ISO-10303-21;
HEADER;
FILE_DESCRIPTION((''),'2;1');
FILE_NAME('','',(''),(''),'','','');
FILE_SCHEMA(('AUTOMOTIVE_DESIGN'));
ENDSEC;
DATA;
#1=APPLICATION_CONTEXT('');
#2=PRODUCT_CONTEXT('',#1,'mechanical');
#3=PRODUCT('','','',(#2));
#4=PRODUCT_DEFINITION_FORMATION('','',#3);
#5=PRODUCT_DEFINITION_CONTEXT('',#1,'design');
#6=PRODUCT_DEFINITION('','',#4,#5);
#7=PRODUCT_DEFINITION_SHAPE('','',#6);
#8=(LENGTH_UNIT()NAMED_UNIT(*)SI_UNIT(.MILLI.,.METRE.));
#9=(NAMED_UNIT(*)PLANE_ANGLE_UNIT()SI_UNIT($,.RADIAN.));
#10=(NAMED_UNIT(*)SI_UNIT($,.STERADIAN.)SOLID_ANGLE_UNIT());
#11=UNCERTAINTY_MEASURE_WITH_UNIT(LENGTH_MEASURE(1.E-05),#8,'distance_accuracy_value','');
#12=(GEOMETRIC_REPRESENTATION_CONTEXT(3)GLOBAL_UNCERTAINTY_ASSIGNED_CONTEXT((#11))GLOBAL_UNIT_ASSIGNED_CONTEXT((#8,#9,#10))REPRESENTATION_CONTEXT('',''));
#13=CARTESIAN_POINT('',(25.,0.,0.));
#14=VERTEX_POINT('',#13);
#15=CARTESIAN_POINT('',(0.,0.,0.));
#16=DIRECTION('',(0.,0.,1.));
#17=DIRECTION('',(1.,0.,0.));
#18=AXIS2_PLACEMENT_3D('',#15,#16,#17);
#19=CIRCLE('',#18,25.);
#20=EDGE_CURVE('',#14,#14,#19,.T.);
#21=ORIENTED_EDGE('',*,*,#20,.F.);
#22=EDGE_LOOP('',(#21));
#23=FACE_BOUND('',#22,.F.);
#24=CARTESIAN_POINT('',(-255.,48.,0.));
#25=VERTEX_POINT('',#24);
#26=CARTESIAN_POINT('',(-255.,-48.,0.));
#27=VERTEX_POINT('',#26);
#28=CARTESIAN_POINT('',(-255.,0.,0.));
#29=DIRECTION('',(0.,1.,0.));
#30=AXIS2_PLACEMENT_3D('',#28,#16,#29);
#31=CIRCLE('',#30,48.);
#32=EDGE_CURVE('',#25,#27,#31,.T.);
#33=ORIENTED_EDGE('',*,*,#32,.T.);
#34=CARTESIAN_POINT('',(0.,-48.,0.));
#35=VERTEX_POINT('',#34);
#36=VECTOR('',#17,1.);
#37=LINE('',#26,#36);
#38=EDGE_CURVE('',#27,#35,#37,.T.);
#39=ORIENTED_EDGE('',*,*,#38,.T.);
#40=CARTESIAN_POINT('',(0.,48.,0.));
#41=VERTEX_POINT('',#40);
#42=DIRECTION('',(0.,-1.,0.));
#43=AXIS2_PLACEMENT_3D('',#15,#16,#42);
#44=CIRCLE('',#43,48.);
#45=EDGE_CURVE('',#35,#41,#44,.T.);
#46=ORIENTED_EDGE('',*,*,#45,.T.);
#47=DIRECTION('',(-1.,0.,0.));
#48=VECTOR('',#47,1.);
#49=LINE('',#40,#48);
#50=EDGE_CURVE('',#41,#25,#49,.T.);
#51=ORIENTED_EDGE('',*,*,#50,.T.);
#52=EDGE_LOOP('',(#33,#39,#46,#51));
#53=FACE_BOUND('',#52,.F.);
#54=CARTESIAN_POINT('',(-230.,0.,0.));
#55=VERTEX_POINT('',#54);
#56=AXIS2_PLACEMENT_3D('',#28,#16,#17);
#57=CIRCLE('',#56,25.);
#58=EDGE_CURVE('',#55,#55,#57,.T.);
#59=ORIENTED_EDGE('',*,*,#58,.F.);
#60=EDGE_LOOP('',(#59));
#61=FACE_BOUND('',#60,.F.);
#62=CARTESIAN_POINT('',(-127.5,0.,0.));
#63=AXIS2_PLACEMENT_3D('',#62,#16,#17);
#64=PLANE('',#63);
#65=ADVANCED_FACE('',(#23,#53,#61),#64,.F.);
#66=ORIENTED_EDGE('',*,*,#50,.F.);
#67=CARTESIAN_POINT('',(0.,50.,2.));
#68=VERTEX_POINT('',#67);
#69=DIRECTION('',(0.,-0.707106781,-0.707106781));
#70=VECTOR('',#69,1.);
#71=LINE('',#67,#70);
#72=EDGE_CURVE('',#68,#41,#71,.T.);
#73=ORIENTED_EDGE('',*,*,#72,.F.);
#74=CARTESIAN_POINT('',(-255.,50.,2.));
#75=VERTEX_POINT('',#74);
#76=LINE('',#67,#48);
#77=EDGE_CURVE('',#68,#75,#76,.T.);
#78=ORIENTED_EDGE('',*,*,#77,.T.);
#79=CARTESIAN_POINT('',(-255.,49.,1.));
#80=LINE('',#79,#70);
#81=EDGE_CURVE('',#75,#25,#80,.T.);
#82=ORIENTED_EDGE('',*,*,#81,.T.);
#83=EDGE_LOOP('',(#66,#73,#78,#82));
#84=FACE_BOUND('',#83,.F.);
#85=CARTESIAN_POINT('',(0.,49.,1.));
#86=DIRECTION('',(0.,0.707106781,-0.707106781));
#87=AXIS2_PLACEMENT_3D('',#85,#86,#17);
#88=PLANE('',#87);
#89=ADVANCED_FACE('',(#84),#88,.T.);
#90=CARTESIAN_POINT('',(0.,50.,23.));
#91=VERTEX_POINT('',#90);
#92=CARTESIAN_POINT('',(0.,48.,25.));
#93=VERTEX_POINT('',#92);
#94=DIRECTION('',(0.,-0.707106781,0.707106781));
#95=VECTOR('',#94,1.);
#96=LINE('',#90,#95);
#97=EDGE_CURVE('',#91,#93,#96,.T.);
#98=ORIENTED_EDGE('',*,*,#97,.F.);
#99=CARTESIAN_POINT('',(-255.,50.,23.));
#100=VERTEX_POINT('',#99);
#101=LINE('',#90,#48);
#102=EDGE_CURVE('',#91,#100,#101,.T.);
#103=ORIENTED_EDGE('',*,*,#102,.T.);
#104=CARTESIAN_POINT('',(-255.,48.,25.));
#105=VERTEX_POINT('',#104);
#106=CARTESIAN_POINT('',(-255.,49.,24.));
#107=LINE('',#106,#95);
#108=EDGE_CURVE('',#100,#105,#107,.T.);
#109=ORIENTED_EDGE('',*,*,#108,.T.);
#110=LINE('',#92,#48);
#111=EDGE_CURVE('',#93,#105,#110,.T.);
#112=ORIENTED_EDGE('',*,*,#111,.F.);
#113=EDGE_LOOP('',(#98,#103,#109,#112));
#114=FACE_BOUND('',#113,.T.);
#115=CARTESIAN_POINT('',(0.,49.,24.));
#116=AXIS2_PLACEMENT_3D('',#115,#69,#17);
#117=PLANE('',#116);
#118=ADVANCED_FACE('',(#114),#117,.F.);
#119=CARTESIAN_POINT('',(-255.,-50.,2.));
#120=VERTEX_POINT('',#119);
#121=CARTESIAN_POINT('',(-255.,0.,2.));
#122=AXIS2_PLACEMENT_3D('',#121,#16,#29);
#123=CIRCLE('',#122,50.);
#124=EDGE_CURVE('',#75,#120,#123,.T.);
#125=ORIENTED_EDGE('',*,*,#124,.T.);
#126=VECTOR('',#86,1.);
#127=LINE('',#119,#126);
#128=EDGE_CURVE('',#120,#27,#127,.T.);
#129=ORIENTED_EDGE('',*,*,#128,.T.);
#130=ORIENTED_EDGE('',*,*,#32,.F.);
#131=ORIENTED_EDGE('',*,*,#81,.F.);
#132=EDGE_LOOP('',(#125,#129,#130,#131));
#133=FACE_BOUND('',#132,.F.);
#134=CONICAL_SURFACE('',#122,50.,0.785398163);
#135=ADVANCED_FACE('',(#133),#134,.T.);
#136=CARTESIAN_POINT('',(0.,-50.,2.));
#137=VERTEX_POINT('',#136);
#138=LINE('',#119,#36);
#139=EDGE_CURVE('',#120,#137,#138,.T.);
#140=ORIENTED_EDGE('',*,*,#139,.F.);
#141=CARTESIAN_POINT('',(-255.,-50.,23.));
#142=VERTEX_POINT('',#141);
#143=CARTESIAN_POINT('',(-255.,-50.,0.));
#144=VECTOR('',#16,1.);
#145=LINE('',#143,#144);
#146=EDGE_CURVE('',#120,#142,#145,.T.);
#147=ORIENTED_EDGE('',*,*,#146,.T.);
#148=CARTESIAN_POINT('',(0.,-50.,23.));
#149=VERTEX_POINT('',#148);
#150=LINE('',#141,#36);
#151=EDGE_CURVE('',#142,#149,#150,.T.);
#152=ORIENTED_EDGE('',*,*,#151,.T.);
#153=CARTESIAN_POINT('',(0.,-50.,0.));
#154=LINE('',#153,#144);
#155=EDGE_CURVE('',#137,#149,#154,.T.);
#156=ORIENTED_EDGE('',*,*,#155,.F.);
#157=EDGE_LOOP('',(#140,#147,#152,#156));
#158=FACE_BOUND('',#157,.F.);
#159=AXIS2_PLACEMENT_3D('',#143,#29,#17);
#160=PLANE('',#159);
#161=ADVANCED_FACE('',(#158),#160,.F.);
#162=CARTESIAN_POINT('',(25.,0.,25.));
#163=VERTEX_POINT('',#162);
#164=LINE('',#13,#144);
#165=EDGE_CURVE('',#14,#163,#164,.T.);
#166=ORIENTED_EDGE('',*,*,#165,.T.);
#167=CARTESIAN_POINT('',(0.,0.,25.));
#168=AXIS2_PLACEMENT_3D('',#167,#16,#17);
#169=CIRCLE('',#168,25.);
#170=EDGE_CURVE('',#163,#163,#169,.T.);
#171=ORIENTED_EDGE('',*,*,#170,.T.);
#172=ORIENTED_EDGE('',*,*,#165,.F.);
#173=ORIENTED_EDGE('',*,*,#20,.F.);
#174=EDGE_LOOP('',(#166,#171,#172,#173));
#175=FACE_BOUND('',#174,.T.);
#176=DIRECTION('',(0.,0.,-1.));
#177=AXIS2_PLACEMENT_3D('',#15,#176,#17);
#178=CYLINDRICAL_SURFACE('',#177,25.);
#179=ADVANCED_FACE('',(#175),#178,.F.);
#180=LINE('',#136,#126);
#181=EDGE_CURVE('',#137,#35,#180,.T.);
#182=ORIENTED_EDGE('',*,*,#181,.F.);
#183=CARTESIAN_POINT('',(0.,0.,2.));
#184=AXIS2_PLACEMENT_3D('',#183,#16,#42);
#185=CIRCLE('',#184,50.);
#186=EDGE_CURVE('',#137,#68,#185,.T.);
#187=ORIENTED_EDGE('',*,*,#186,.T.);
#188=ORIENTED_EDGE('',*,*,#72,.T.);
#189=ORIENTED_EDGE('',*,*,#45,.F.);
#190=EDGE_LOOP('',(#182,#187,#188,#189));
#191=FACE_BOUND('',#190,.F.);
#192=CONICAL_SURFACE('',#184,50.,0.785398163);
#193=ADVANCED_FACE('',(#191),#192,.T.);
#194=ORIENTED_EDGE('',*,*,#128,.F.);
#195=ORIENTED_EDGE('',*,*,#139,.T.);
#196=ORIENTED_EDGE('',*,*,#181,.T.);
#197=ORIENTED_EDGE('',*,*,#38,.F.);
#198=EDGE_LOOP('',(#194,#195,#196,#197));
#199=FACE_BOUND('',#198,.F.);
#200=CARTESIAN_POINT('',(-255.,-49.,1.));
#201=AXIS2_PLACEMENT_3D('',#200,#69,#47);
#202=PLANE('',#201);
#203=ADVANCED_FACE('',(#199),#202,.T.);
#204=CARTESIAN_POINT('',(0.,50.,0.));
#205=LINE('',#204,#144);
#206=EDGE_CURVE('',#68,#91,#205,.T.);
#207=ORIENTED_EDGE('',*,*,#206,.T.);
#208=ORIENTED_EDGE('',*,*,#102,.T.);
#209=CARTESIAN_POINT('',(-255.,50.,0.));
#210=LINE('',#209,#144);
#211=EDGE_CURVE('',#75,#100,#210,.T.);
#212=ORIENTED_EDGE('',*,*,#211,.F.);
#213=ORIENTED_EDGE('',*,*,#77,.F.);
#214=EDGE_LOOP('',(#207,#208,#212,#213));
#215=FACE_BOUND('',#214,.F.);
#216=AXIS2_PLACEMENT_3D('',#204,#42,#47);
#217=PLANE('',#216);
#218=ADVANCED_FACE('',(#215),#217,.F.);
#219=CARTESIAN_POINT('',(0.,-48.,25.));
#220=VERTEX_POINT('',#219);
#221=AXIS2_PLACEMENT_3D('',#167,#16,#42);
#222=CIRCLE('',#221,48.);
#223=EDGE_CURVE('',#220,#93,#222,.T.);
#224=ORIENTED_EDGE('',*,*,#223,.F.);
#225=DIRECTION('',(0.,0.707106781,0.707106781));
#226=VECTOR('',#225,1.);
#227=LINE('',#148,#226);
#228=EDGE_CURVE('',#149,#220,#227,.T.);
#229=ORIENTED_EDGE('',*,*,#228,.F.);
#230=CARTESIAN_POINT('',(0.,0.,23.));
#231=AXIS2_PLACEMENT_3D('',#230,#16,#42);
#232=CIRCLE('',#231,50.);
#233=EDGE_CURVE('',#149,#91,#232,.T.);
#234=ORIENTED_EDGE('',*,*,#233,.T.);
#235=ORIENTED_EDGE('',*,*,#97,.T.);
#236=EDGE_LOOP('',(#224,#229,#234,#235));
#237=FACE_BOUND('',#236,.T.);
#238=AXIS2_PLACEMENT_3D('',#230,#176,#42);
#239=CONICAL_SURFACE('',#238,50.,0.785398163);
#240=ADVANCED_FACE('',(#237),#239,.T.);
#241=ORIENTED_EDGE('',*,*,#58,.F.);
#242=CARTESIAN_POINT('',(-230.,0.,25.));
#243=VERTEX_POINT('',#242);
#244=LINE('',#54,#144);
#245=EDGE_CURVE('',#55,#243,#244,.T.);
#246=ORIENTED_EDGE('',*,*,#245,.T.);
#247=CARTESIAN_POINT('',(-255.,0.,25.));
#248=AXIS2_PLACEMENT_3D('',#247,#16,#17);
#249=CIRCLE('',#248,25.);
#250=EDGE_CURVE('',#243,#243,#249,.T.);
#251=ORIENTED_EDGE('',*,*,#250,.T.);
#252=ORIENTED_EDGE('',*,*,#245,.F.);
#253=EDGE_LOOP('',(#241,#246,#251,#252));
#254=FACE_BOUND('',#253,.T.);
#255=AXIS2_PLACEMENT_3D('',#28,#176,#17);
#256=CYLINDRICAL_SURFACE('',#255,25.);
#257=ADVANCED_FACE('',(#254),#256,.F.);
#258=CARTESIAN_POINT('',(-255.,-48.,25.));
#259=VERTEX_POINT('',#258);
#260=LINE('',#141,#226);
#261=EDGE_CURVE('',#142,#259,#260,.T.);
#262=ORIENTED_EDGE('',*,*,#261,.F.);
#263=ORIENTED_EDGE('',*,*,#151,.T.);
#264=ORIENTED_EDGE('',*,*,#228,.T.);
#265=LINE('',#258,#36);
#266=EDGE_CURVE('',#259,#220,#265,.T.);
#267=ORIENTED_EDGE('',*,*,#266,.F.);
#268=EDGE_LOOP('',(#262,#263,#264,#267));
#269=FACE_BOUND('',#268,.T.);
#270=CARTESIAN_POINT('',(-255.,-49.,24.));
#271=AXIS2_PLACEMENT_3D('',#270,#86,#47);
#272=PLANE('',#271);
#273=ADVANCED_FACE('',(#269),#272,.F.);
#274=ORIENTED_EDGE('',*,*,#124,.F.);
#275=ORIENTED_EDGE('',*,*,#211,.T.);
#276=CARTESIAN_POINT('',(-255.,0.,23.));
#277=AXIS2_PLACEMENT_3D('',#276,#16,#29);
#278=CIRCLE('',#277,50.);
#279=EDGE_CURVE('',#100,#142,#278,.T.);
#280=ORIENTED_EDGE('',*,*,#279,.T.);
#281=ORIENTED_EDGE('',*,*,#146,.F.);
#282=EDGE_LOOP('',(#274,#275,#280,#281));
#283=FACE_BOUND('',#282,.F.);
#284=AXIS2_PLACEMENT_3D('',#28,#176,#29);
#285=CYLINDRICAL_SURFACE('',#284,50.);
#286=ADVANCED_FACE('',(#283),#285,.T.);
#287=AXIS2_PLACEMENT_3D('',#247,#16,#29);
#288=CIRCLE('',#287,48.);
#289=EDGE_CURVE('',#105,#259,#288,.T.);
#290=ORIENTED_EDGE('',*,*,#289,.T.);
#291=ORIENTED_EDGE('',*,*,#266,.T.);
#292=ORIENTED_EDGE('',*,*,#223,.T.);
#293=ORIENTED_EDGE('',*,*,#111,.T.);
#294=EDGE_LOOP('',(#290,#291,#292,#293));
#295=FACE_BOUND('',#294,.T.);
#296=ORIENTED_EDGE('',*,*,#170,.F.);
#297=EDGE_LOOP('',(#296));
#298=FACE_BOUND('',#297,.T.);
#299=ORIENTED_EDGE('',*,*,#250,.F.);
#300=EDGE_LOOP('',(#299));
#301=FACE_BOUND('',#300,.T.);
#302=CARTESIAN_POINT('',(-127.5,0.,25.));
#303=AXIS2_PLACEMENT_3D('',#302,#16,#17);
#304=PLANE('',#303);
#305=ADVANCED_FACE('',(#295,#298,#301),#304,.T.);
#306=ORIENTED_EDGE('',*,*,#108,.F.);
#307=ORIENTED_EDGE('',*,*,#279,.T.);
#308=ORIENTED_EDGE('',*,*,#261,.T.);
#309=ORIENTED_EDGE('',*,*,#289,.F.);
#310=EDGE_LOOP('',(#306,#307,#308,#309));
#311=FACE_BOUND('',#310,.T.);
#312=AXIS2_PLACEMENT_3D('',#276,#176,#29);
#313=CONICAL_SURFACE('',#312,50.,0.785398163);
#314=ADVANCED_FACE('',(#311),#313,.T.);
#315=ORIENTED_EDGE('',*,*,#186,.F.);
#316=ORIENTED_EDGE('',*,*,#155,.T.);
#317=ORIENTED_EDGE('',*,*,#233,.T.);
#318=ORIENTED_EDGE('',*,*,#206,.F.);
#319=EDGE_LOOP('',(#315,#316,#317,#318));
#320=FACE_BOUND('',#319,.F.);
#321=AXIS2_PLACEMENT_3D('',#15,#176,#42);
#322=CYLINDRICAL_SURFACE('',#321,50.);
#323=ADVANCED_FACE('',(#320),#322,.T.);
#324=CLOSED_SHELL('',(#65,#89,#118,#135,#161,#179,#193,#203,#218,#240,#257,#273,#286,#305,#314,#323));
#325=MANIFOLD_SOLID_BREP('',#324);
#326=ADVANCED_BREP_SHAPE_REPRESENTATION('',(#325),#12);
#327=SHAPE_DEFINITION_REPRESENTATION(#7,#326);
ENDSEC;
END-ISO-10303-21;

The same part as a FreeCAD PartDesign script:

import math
import FreeCAD as App
import Part
import Sketcher
from FreeCAD import Vector


def edges_at(feature, points):
    """Names of the edges that pass closest to the given points."""
    edges = feature.Shape.Edges
    near = lambda p: min(range(len(edges)), key=lambda i: edges[i].distToShape(Part.Vertex(*p))[0])
    return sorted({f"Edge{near(p) + 1}" for p in points})

doc = App.newDocument("Part")
body = doc.addObject("PartDesign::Body", "Body")

# Sketch on XY plane
sketch1 = body.newObject("Sketcher::SketchObject", "Sketch")
sketch1.AttachmentSupport = (doc.getObject("XY_Plane"), [""])
sketch1.MapMode = "FlatFace"
sketch1.addGeometry([
    Part.LineSegment(Vector(-255, -50, 0), Vector(0, -50, 0)),  # 0
    Part.ArcOfCircle(Part.Circle(Vector(0, 0, 0), Vector(0, 0, 1), 50), math.radians(-90), math.radians(90)),  # 1
    Part.LineSegment(Vector(0, 50, 0), Vector(-255, 50, 0)),  # 2
    Part.ArcOfCircle(Part.Circle(Vector(-255, 0, 0), Vector(0, 0, 1), 50), math.radians(90), math.radians(270)),  # 3
    Part.Circle(Vector(-255, 0, 0), Vector(0, 0, 1), 25),  # 4
    Part.Circle(Vector(0, 0, 0), Vector(0, 0, 1), 25),  # 5
], False)
sketch1.addConstraint([
    Sketcher.Constraint("Tangent", 0, 2, 1, 1),
    Sketcher.Constraint("Tangent", 1, 2, 2, 1),
    Sketcher.Constraint("Tangent", 2, 2, 3, 1),
    Sketcher.Constraint("Tangent", 3, 2, 0, 1),
    Sketcher.Constraint("Horizontal", 0),
    Sketcher.Constraint("Horizontal", 2),
    Sketcher.Constraint("Coincident", 1, 3, -1, 1),
    Sketcher.Constraint("Coincident", 5, 3, -1, 1),
    Sketcher.Constraint("Coincident", 4, 3, 3, 3),
    Sketcher.Constraint("Equal", 4, 5),
    Sketcher.Constraint("Diameter", 4, 50.0),
    Sketcher.Constraint("Radius", 1, 50.0),
    Sketcher.Constraint("DistanceX", 0, 1, 0, 2, 255.0),
])
pad1 = body.newObject("PartDesign::Pad", "Pad")
pad1.Profile = sketch1
pad1.Length = 25
doc.recompute()

chamfer = body.newObject("PartDesign::Chamfer", "Chamfer")
chamfer.Base = (pad1, edges_at(pad1, [(50, 0, 25), (50, 0, 0)]))
chamfer.ChamferType = "Two distances"
chamfer.Size = 2
chamfer.Size2 = 2

doc.recompute()
